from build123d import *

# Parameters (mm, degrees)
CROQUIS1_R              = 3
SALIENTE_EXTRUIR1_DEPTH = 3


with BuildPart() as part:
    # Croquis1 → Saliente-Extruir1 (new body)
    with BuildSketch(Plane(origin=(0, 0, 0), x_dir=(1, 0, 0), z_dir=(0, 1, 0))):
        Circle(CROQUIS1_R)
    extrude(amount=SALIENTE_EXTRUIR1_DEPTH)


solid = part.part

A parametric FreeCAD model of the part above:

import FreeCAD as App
import Part
import Sketcher

doc = App.newDocument("Part")
body = doc.addObject("PartDesign::Body", "Body")

# Sketch on XZ plane
sketch1 = body.newObject("Sketcher::SketchObject", "Sketch")
sketch1.AttachmentSupport = (doc.getObject("XZ_Plane"), [""])
sketch1.MapMode = "FlatFace"
sketch1.addGeometry(Part.Circle(App.Vector(0, 0, 0), App.Vector(0, 0, 1), 3), False)
sketch1.addConstraint([
    Sketcher.Constraint("Coincident", 0, 3, -1, 1),
    Sketcher.Constraint("Diameter", 0, 6.0),
])
pad1 = body.newObject("PartDesign::Pad", "Pad")
pad1.Profile = sketch1
pad1.Length = 3
pad1.Reversed = True

doc.recompute()
